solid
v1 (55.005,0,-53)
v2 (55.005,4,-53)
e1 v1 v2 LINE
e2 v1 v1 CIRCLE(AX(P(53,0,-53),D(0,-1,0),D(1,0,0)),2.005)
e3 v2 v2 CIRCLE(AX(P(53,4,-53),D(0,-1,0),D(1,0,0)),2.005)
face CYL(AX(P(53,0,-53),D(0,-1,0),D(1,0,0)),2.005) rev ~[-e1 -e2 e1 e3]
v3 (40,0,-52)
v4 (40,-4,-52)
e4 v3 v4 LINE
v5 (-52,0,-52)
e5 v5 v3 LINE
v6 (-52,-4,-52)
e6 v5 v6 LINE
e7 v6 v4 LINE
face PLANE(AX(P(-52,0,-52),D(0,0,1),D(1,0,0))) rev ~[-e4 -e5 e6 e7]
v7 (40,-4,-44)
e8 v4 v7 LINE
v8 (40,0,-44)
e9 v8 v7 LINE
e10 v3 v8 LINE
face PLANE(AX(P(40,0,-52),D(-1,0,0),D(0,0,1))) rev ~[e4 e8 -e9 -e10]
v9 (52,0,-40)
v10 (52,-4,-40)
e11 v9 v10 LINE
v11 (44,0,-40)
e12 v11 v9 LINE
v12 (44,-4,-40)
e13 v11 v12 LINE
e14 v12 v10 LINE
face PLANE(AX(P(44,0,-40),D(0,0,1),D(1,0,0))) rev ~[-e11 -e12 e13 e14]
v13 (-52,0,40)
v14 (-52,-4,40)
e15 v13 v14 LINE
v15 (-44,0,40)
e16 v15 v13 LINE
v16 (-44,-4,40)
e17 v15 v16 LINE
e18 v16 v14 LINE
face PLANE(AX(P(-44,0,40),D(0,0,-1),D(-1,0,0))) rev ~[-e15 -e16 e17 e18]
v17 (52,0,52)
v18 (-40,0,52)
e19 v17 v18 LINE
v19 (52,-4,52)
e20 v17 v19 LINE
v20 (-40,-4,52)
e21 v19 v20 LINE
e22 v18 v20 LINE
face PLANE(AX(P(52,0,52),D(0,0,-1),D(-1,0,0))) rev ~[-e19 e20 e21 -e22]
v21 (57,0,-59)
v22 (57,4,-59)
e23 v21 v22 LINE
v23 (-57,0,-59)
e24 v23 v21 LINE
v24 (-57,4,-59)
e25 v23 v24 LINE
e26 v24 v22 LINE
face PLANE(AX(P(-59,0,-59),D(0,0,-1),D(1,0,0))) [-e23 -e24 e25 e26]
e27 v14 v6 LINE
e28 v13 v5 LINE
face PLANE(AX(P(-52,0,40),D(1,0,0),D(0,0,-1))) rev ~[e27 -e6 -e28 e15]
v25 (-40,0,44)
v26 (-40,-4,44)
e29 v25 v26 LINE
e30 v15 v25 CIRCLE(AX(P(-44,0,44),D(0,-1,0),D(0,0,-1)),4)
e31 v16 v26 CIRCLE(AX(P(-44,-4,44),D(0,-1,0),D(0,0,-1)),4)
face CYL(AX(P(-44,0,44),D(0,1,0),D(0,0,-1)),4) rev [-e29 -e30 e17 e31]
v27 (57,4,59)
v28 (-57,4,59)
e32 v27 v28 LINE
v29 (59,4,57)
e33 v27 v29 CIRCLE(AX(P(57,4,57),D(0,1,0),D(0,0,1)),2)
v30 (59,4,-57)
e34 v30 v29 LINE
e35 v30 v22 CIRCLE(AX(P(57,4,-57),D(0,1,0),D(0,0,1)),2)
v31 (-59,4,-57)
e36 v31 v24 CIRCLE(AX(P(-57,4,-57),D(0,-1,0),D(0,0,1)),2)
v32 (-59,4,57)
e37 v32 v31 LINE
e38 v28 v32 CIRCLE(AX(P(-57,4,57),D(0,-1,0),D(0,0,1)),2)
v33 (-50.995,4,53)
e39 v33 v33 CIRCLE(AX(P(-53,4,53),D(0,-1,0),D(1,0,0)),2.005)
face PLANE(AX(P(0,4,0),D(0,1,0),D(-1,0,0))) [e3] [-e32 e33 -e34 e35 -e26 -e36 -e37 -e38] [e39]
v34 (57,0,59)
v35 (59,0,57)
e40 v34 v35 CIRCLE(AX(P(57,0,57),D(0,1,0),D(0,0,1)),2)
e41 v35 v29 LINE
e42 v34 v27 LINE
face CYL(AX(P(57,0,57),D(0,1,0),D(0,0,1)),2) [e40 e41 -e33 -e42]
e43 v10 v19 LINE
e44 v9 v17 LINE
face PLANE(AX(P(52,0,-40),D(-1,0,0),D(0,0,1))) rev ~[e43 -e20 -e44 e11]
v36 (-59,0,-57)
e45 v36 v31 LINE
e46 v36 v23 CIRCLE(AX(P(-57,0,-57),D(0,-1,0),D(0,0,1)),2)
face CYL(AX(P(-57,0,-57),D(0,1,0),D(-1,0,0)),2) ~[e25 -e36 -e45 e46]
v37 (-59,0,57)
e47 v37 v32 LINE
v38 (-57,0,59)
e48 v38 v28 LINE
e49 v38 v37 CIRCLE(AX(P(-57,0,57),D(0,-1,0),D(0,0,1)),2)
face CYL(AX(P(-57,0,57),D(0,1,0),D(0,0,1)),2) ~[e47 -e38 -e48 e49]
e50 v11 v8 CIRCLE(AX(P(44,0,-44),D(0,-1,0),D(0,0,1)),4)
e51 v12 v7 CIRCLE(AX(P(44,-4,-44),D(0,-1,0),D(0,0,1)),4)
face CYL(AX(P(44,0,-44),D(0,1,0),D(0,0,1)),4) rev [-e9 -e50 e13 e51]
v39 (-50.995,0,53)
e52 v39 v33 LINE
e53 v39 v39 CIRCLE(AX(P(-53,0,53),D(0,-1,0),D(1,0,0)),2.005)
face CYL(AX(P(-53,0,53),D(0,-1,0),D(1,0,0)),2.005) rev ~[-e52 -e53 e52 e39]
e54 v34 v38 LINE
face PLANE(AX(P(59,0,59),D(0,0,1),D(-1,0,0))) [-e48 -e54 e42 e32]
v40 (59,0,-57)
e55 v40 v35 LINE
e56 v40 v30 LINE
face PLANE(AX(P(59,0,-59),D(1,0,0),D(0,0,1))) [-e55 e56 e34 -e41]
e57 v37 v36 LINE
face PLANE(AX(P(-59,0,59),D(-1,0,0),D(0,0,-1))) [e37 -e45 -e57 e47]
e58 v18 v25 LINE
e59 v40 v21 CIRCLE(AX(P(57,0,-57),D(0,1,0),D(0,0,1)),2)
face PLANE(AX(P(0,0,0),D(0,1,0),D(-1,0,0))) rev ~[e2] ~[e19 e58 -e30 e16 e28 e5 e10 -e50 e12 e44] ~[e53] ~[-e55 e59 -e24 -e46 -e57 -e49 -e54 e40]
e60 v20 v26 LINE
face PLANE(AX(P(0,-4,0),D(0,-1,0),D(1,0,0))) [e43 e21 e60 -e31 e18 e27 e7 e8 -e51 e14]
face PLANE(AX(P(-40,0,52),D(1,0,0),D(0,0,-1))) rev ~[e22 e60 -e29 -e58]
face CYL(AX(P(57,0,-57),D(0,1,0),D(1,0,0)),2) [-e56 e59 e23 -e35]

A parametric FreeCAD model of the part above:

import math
import FreeCAD as App
import Part
import Sketcher

V = App.Vector


def edges_at(feature, points):
    """Names of the edges that pass closest to the given points."""
    edges = feature.Shape.Edges
    near = lambda p: min(range(len(edges)), key=lambda i: edges[i].distToShape(Part.Vertex(*p))[0])
    return sorted({f"Edge{near(p) + 1}" for p in points})

doc = App.newDocument("Part")
body = doc.addObject("PartDesign::Body", "Body")

# Sketch on XZ plane
sketch1 = body.newObject("Sketcher::SketchObject", "Sketch")
sketch1.AttachmentSupport = (doc.getObject("XZ_Plane"), [""])
sketch1.MapMode = "FlatFace"
sketch1.addGeometry([
    Part.LineSegment(V(-59, 59, 0), V(59, 59, 0)),
    Part.LineSegment(V(59, 59, 0), V(59, -59, 0)),
    Part.LineSegment(V(59, -59, 0), V(-59, -59, 0)),
    Part.LineSegment(V(-59, -59, 0), V(-59, 59, 0)),
], False)
sketch1.addConstraint([
    Sketcher.Constraint("Coincident", 0, 2, 1, 1),
    Sketcher.Constraint("Coincident", 1, 2, 2, 1),
    Sketcher.Constraint("Coincident", 2, 2, 3, 1),
    Sketcher.Constraint("Coincident", 3, 2, 0, 1),
    Sketcher.Constraint("Horizontal", 0),
    Sketcher.Constraint("Vertical", 1),
    Sketcher.Constraint("Horizontal", 2),
    Sketcher.Constraint("Vertical", 3),
    Sketcher.Constraint("Symmetric", 0, 2, 2, 2, -1, 1),
    Sketcher.Constraint("Equal", 2, 1),
    Sketcher.Constraint("DistanceX", 0, 1, 0, 2, 118.0),
])
pad1 = body.newObject("PartDesign::Pad", "Pad")
pad1.Profile = sketch1
pad1.Length = 4
pad1.Reversed = True

# Sketch on XZ plane
sketch2 = body.newObject("Sketcher::SketchObject", "Sketch001")
sketch2.AttachmentSupport = (doc.getObject("XZ_Plane"), [""])
sketch2.MapMode = "FlatFace"
sketch2.addGeometry([
    Part.LineSegment(V(-52, 40, 0), V(-52, -52, 0)),  # 0
    Part.LineSegment(V(-52, -52, 0), V(40, -52, 0)),  # 1
    Part.LineSegment(V(40, -52, 0), V(40, -44, 0)),  # 2
    Part.ArcOfCircle(Part.Circle(V(44, -44, 0), V(0, 0, 1), 4), math.radians(90), math.radians(180)),  # 3
    Part.LineSegment(V(44, -40, 0), V(52, -40, 0)),  # 4
    Part.LineSegment(V(52, -40, 0), V(52, 52, 0)),  # 5
    Part.LineSegment(V(52, 52, 0), V(-40, 52, 0)),  # 6
    Part.LineSegment(V(-40, 52, 0), V(-40, 44, 0)),  # 7
    Part.ArcOfCircle(Part.Circle(V(-44, 44, 0), V(0, 0, 1), 4), math.radians(-90), math.radians(0)),  # 8
    Part.LineSegment(V(-44, 40, 0), V(-52, 40, 0)),  # 9
], False)
sketch2.addConstraint([
    Sketcher.Constraint("Coincident", 0, 2, 1, 1),
    Sketcher.Constraint("Coincident", 1, 2, 2, 1),
    Sketcher.Constraint("Tangent", 2, 2, 3, 2),
    Sketcher.Constraint("Tangent", 3, 1, 4, 1),
    Sketcher.Constraint("Coincident", 4, 2, 5, 1),
    Sketcher.Constraint("Coincident", 5, 2, 6, 1),
    Sketcher.Constraint("Coincident", 6, 2, 7, 1),
    Sketcher.Constraint("Tangent", 7, 2, 8, 2),
    Sketcher.Constraint("Tangent", 8, 1, 9, 1),
    Sketcher.Constraint("Coincident", 9, 2, 0, 1),
    Sketcher.Constraint("Vertical", 0),
    Sketcher.Constraint("Horizontal", 1),
    Sketcher.Constraint("Vertical", 2),
    Sketcher.Constraint("Horizontal", 4),
    Sketcher.Constraint("Vertical", 5),
    Sketcher.Constraint("Horizontal", 6),
    Sketcher.Constraint("Vertical", 7),
    Sketcher.Constraint("Horizontal", 9),
    Sketcher.Constraint("Equal", 3, 8),
    Sketcher.Constraint("Symmetric", 3, 3, 8, 3, -1, 1),
    Sketcher.Constraint("Symmetric", 0, 2, 5, 2, -1, 1),
    Sketcher.Constraint("Equal", 6, 0),
    Sketcher.Constraint("Equal", 9, 2),
    Sketcher.Constraint("Radius", 3, 4.0),
    Sketcher.Constraint("DistanceX", 1, 1, 1, 2, 92.0),
    Sketcher.Constraint("DistanceX", 4, 1, 4, 2, 8.0),
])
pad2 = body.newObject("PartDesign::Pad", "Pad001")
pad2.Profile = sketch2
pad2.Length = 4
doc.recompute()

fillet = body.newObject("PartDesign::Fillet", "Fillet")
fillet.Base = (pad2, edges_at(pad2, [
    (59, 2, 59),
    (59, 2, -59),
    (-59, 2, 59),
    (-59, 2, -59),
]))
fillet.Radius = 2

# Sketch on XZ plane
sketch3 = body.newObject("Sketcher::SketchObject", "Sketch002")
sketch3.AttachmentSupport = (doc.getObject("XZ_Plane"), [""])
sketch3.MapMode = "FlatFace"
sketch3.addGeometry([
    Part.Circle(V(53, -53, 0), V(0, 0, 1), 2),
    Part.Circle(V(-53, 53, 0), V(0, 0, 1), 2),
], False)
sketch3.addConstraint([
    Sketcher.Constraint("Equal", 0, 1),
    Sketcher.Constraint("Symmetric", 0, 3, 1, 3, -1, 1),
    Sketcher.Constraint("Diameter", 0, 4.01),
    Sketcher.Constraint("DistanceX", -1, 1, 0, 3, 53.0),
    Sketcher.Constraint("DistanceY", 0, 3, -1, 1, 53.0),
])
pocket1 = body.newObject("PartDesign::Pocket", "Pocket")
pocket1.Profile = sketch3
pocket1.Length = 4

doc.recompute()
